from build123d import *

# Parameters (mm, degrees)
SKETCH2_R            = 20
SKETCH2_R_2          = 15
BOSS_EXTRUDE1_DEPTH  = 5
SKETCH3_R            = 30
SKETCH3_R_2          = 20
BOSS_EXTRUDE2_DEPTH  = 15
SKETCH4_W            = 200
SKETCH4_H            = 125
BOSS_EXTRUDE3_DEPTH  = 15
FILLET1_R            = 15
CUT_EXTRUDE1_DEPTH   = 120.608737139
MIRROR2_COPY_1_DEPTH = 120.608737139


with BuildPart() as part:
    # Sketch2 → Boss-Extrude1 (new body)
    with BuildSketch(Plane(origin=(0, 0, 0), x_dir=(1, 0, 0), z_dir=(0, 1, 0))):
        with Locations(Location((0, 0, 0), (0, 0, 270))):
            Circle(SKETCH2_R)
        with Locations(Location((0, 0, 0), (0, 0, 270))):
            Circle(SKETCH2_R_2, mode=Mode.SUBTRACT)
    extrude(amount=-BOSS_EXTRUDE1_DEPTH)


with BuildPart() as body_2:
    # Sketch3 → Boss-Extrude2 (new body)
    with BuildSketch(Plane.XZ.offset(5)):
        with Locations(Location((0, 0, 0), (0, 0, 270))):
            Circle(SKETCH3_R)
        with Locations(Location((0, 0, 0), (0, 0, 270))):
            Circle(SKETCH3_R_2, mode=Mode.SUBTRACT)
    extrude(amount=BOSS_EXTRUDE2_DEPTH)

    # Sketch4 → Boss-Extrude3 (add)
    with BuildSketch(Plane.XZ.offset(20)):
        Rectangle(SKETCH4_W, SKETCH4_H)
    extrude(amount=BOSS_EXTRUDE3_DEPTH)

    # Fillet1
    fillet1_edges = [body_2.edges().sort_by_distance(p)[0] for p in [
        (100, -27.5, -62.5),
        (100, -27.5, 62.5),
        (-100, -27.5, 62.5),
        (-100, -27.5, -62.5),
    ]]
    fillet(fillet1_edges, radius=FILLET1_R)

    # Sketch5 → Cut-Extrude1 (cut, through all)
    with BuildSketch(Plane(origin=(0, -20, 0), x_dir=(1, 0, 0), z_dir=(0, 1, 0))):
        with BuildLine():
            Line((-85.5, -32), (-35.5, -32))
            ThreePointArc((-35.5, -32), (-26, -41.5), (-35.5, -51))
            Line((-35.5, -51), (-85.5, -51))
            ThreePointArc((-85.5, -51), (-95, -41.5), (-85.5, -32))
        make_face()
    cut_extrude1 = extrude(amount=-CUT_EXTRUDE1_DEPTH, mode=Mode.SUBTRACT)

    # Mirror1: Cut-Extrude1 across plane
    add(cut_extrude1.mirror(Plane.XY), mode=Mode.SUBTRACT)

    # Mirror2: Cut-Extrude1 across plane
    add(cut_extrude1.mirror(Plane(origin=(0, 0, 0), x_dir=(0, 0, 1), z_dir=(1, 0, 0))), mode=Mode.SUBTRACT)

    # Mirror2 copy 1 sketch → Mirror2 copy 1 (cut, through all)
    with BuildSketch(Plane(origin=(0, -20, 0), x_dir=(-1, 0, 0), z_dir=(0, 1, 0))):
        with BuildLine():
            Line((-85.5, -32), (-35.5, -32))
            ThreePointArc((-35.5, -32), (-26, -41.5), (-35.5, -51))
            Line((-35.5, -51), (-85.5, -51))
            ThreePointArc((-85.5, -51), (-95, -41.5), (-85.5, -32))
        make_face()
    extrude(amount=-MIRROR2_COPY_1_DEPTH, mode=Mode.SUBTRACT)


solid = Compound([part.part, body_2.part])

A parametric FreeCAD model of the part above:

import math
import FreeCAD as App
import Part
import Sketcher
from FreeCAD import Vector


def edges_at(feature, points):
    """Names of the edges that pass closest to the given points."""
    edges = feature.Shape.Edges
    near = lambda p: min(range(len(edges)), key=lambda i: edges[i].distToShape(Part.Vertex(*p))[0])
    return sorted({f"Edge{near(p) + 1}" for p in points})

doc = App.newDocument("Part")
body = doc.addObject("PartDesign::Body", "Body")

# Sketch on XZ plane
sketch1 = body.newObject("Sketcher::SketchObject", "Sketch")
sketch1.AttachmentSupport = (doc.getObject("XZ_Plane"), [""])
sketch1.MapMode = "FlatFace"
sketch1.addGeometry([
    Part.Circle(Vector(0, 0, 0), Vector(0, 0, 1), 20),
    Part.Circle(Vector(0, 0, 0), Vector(0, 0, 1), 15),
], False)
sketch1.addConstraint([
    Sketcher.Constraint("Coincident", 0, 3, -1, 1),
    Sketcher.Constraint("Coincident", 1, 3, -1, 1),
    Sketcher.Constraint("Diameter", 0, 40.0),
    Sketcher.Constraint("Diameter", 1, 30.0),
])
pad1 = body.newObject("PartDesign::Pad", "Pad")
pad1.Profile = sketch1
pad1.Length = 5
body2 = doc.addObject("PartDesign::Body", "Body001")

# Sketch on XZ plane
sketch2 = body2.newObject("Sketcher::SketchObject", "Sketch001")
sketch2.AttachmentSupport = (doc.getObject("XZ_Plane001"), [""])
sketch2.MapMode = "FlatFace"
sketch2.AttachmentOffset = App.Placement(Vector(0, 0, 5), App.Rotation())
sketch2.addGeometry([
    Part.Circle(Vector(0, 0, 0), Vector(0, 0, 1), 30),
    Part.Circle(Vector(0, 0, 0), Vector(0, 0, 1), 20),
], False)
sketch2.addConstraint([
    Sketcher.Constraint("Coincident", 0, 3, -1, 1),
    Sketcher.Constraint("Coincident", 1, 3, -1, 1),
    Sketcher.Constraint("Diameter", 0, 60.0),
    Sketcher.Constraint("Diameter", 1, 40.0),
])
pad2 = body2.newObject("PartDesign::Pad", "Pad001")
pad2.Profile = sketch2
pad2.Length = 15

# Sketch on XZ plane
sketch3 = body2.newObject("Sketcher::SketchObject", "Sketch002")
sketch3.AttachmentSupport = (doc.getObject("XZ_Plane001"), [""])
sketch3.MapMode = "FlatFace"
sketch3.AttachmentOffset = App.Placement(Vector(0, 0, 20), App.Rotation())
sketch3.addGeometry([
    Part.LineSegment(Vector(-100, 62, 0), Vector(-100, -62, 0)),
    Part.LineSegment(Vector(-100, -62, 0), Vector(100, -62, 0)),
    Part.LineSegment(Vector(100, -62, 0), Vector(100, 62, 0)),
    Part.LineSegment(Vector(100, 62, 0), Vector(-100, 62, 0)),
], False)
sketch3.addConstraint([
    Sketcher.Constraint("Coincident", 0, 2, 1, 1),
    Sketcher.Constraint("Coincident", 1, 2, 2, 1),
    Sketcher.Constraint("Coincident", 2, 2, 3, 1),
    Sketcher.Constraint("Coincident", 3, 2, 0, 1),
    Sketcher.Constraint("Vertical", 0),
    Sketcher.Constraint("Horizontal", 1),
    Sketcher.Constraint("Vertical", 2),
    Sketcher.Constraint("Horizontal", 3),
    Sketcher.Constraint("Symmetric", 0, 2, 2, 2, -1, 1),
    Sketcher.Constraint("DistanceX", 1, 1, 1, 2, 200.0),
    Sketcher.Constraint("DistanceY", 0, 2, 0, 1, 125.0),
])
pad3 = body2.newObject("PartDesign::Pad", "Pad002")
pad3.Profile = sketch3
pad3.Length = 15
doc.recompute()

fillet = body2.newObject("PartDesign::Fillet", "Fillet")
fillet.Base = (pad3, edges_at(pad3, [
    (100, -27.5, -62.5),
    (100, -27.5, 62.5),
    (-100, -27.5, 62.5),
    (-100, -27.5, -62.5),
]))
fillet.Radius = 15

# Sketch on XZ plane
sketch4 = body2.newObject("Sketcher::SketchObject", "Sketch003")
sketch4.AttachmentSupport = (doc.getObject("XZ_Plane001"), [""])
sketch4.MapMode = "FlatFace"
sketch4.AttachmentOffset = App.Placement(Vector(0, 0, 20), App.Rotation())
sketch4.addGeometry([
    Part.LineSegment(Vector(-36, 32, 0), Vector(-86, 32, 0)),
    Part.ArcOfCircle(Part.Circle(Vector(-86, 42, 0), Vector(0, 0, 1), 10), math.radians(90), math.radians(270)),
    Part.LineSegment(Vector(-86, 51, 0), Vector(-36, 51, 0)),
    Part.ArcOfCircle(Part.Circle(Vector(-36, 42, 0), Vector(0, 0, 1), 10), math.radians(-90), math.radians(90)),
], False)
sketch4.addConstraint([
    Sketcher.Constraint("Tangent", 0, 2, 1, 2),
    Sketcher.Constraint("Tangent", 1, 1, 2, 1),
    Sketcher.Constraint("Tangent", 2, 2, 3, 2),
    Sketcher.Constraint("Tangent", 3, 1, 0, 1),
    Sketcher.Constraint("Horizontal", 0),
    Sketcher.Constraint("Horizontal", 2),
    Sketcher.Constraint("Radius", 1, 9.5),
    Sketcher.Constraint("DistanceX", 0, 2, 0, 1, 50.0),
    Sketcher.Constraint("DistanceY", -1, 1, 0, 2, 32.0),
    Sketcher.Constraint("DistanceX", 1, 3, -1, 1, 85.5),
])
pocket1 = body2.newObject("PartDesign::Pocket", "Pocket")
pocket1.Profile = sketch4
pocket1.Type = "ThroughAll"
pocket1.Reversed = True
doc.recompute()

mirrored = body2.newObject("PartDesign::Mirrored", "Mirrored")
mirrored.Originals = [pocket1]
mirrored.MirrorPlane = (doc.getObject("XY_Plane001"), [""])
body2.Tip = mirrored
doc.recompute()

mirrored2 = body2.newObject("PartDesign::Mirrored", "Mirrored001")
mirrored2.Originals = [pocket1]
mirrored2.MirrorPlane = (doc.getObject("YZ_Plane001"), [""])
body2.Tip = mirrored2

# Sketch on XZ plane
sketch5 = body2.newObject("Sketcher::SketchObject", "Sketch004")
sketch5.AttachmentSupport = (doc.getObject("XZ_Plane001"), [""])
sketch5.MapMode = "FlatFace"
sketch5.AttachmentOffset = App.Placement(Vector(0, 0, 20), App.Rotation())
sketch5.addGeometry([
    Part.LineSegment(Vector(36, -32, 0), Vector(86, -32, 0)),
    Part.ArcOfCircle(Part.Circle(Vector(86, -42, 0), Vector(0, 0, 1), 10), math.radians(-90), math.radians(90)),
    Part.LineSegment(Vector(86, -51, 0), Vector(36, -51, 0)),
    Part.ArcOfCircle(Part.Circle(Vector(36, -42, 0), Vector(0, 0, 1), 10), math.radians(90), math.radians(270)),
], False)
sketch5.addConstraint([
    Sketcher.Constraint("Tangent", 0, 2, 1, 2),
    Sketcher.Constraint("Tangent", 1, 1, 2, 1),
    Sketcher.Constraint("Tangent", 2, 2, 3, 2),
    Sketcher.Constraint("Tangent", 3, 1, 0, 1),
    Sketcher.Constraint("Horizontal", 0),
    Sketcher.Constraint("Horizontal", 2),
    Sketcher.Constraint("Radius", 1, 9.5),
    Sketcher.Constraint("DistanceX", 0, 1, 0, 2, 50.0),
    Sketcher.Constraint("DistanceY", 0, 2, -1, 1, 32.0),
    Sketcher.Constraint("DistanceX", -1, 1, 1, 3, 85.5),
])
pocket2 = body2.newObject("PartDesign::Pocket", "Pocket001")
pocket2.Profile = sketch5
pocket2.Type = "ThroughAll"
pocket2.Reversed = True

doc.recompute()
